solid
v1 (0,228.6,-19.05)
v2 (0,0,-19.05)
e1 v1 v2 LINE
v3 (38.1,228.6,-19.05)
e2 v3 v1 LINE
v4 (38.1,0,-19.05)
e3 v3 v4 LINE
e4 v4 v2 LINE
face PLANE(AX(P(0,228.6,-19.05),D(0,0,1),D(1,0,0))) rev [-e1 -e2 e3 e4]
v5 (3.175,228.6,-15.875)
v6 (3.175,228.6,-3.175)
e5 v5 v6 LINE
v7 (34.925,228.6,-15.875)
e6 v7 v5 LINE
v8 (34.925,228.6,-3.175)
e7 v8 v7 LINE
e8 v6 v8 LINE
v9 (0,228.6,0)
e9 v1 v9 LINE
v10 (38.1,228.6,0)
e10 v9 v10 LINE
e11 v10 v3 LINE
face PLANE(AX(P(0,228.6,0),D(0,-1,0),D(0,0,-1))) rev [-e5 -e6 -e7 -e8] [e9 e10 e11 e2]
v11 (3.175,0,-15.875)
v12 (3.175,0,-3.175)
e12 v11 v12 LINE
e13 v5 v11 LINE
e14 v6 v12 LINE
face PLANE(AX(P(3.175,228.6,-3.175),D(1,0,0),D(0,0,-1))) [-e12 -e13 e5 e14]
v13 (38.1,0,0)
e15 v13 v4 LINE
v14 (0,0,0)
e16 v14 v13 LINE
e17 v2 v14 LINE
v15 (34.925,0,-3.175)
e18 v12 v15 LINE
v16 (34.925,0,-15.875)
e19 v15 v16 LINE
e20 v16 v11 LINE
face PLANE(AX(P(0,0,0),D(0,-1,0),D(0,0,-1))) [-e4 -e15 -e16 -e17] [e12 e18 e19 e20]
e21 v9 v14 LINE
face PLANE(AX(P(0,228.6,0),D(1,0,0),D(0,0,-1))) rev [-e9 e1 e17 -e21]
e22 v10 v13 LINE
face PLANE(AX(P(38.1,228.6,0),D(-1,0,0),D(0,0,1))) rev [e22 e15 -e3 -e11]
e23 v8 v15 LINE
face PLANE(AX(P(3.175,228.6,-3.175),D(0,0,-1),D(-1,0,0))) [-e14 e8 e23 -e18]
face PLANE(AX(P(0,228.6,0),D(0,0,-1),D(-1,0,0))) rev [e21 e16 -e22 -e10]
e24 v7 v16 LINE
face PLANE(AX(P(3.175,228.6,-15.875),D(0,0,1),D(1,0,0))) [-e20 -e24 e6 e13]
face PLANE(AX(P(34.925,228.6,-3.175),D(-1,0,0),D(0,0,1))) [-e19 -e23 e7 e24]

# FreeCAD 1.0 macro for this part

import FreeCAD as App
import Part
import Sketcher

V = App.Vector
Q = App.Units.Quantity


def add_polygon(sketch, points):
    """Adds a closed chain of lines whose ends are joined by coincident constraints."""
    first, n = sketch.GeometryCount, len(points)
    for a, b in zip(points, points[1:] + points[:1]):
        sketch.addGeometry(Part.LineSegment(App.Vector(*a, 0), App.Vector(*b, 0)), False)
    for i in range(n):
        sketch.addConstraint(Sketcher.Constraint("Coincident", first + i, 2, first + (i + 1) % n, 1))

doc = App.newDocument("Part")
body = doc.addObject("PartDesign::Body", "Body")

# Sketch on XZ plane
sketch1 = doc.addObject("Sketcher::SketchObject", "Sketch")
body.addObject(sketch1)
sketch1.AttachmentSupport = (doc.XZ_Plane, [""])
sketch1.MapMode = "FlatFace"
add_polygon(sketch1, [(0, -19), (0, 0), (38, 0), (38, -19)])  # lines 0-3
add_polygon(sketch1, [(35, -3), (3, -3), (3, -16), (35, -16)])  # lines 4-7
sketch1.addConstraint([
    Sketcher.Constraint("Vertical", 0),
    Sketcher.Constraint("Horizontal", 1),
    Sketcher.Constraint("Vertical", 2),
    Sketcher.Constraint("Horizontal", 3),
    Sketcher.Constraint("Horizontal", 4),
    Sketcher.Constraint("Vertical", 5),
    Sketcher.Constraint("Horizontal", 6),
    Sketcher.Constraint("Vertical", 7),
    Sketcher.Constraint("Coincident", 0, 2, -1, 1),
    Sketcher.Constraint("DistanceX", 1, 1, 1, 2, Q("1.5 in")),
    Sketcher.Constraint("DistanceY", 5, 2, 5, 1, Q("0.5 in")),
    Sketcher.Constraint("DistanceX", 4, 2, 4, 1, Q("1.25 in")),
    Sketcher.Constraint("DistanceY", 0, 1, 0, 2, Q("0.75 in")),
    Sketcher.Constraint("DistanceX", -1, 1, 4, 2, Q("0.125 in")),
    Sketcher.Constraint("DistanceY", 4, 2, -1, 1, Q("0.125 in")),
])
pad1 = doc.addObject("PartDesign::Pad", "Pad")
body.addObject(pad1)
pad1.Profile = sketch1
pad1.Length = Q("9 in")
pad1.Reversed = True

doc.recompute()
